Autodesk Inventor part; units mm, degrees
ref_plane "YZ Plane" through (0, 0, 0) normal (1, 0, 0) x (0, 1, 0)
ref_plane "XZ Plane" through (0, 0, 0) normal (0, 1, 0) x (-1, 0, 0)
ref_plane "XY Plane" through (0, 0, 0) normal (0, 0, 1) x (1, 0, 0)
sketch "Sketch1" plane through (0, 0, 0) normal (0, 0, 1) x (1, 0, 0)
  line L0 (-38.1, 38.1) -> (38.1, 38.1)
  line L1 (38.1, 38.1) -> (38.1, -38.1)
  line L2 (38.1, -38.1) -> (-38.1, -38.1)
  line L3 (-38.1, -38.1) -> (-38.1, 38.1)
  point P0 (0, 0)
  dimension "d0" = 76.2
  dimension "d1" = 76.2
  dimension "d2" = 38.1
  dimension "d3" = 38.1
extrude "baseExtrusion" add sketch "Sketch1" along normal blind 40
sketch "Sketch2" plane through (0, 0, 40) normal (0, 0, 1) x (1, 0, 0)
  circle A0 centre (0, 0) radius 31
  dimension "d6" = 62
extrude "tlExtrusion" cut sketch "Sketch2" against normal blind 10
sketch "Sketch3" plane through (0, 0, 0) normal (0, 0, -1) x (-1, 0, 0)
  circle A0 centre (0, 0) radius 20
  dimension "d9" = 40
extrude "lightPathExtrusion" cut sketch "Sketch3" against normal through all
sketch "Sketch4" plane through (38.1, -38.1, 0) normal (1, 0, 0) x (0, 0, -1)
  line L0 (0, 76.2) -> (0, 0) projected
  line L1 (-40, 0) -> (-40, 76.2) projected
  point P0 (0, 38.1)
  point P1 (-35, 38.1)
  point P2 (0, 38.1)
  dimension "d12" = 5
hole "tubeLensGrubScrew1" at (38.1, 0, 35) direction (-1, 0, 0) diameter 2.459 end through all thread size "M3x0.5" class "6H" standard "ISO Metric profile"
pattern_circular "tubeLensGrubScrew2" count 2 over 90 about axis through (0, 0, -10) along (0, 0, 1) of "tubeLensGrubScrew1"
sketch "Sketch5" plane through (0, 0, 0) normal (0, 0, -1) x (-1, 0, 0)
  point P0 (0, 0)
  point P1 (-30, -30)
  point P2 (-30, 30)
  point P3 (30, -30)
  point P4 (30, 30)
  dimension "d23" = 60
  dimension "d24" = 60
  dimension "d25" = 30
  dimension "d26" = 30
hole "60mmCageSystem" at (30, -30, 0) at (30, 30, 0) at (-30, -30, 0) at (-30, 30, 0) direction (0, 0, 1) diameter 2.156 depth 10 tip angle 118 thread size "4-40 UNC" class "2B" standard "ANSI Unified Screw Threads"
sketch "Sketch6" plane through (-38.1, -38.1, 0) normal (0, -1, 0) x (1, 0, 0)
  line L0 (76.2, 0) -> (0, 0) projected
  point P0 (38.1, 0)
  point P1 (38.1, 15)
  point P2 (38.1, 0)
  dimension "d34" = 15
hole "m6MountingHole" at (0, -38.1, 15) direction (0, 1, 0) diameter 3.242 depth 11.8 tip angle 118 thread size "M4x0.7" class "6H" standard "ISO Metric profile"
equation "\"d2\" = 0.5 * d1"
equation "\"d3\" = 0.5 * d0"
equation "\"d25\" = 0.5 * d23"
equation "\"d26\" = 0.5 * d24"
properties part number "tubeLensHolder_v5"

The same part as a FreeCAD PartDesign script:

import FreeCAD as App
import Part
import Sketcher
Q = App.Units.Quantity


def add_polygon(sketch, points):
    """Adds a closed chain of lines whose ends are joined by coincident constraints."""
    first, n = sketch.GeometryCount, len(points)
    for a, b in zip(points, points[1:] + points[:1]):
        sketch.addGeometry(Part.LineSegment(App.Vector(*a, 0), App.Vector(*b, 0)), False)
    for i in range(n):
        sketch.addConstraint(Sketcher.Constraint("Coincident", first + i, 2, first + (i + 1) % n, 1))

doc = App.newDocument("Part")
body = doc.addObject("PartDesign::Body", "Body")

# Sketch on XY plane
sketch1 = body.newObject("Sketcher::SketchObject", "Sketch")
sketch1.AttachmentSupport = (doc.getObject("XY_Plane"), [""])
sketch1.MapMode = "FlatFace"
add_polygon(sketch1, [(38.1, 38.1), (-38.1, 38.1), (-38.1, -38.1), (38.1, -38.1)])  # lines 0-3
sketch1.addConstraint([
    Sketcher.Constraint("Horizontal", 0),
    Sketcher.Constraint("Vertical", 1),
    Sketcher.Constraint("Horizontal", 2),
    Sketcher.Constraint("Vertical", 3),
    Sketcher.Constraint("Symmetric", 0, 2, 2, 2, -1, 1),
    Sketcher.Constraint("Equal", 2, 1),
    Sketcher.Constraint("DistanceX", 0, 2, 0, 1, Q("76.2 mm")),
])
pad1 = body.newObject("PartDesign::Pad", "Pad")
pad1.Profile = sketch1
pad1.Length = 40

# Sketch on XY plane
sketch2 = body.newObject("Sketcher::SketchObject", "Sketch001")
sketch2.AttachmentSupport = (doc.getObject("XY_Plane"), [""])
sketch2.MapMode = "FlatFace"
sketch2.AttachmentOffset = App.Placement(App.Vector(0, 0, 40), App.Rotation())
sketch2.addGeometry(Part.Circle(App.Vector(0, 0, 0), App.Vector(0, 0, 1), 31), False)
sketch2.addConstraint([
    Sketcher.Constraint("Coincident", 0, 3, -1, 1),
    Sketcher.Constraint("Diameter", 0, Q("62 mm")),
])
pocket1 = body.newObject("PartDesign::Pocket", "Pocket")
pocket1.Profile = sketch2
pocket1.Length = 10

# Sketch on XY plane
sketch3 = body.newObject("Sketcher::SketchObject", "Sketch002")
sketch3.AttachmentSupport = (doc.getObject("XY_Plane"), [""])
sketch3.MapMode = "FlatFace"
sketch3.addGeometry(Part.Circle(App.Vector(0, 0, 0), App.Vector(0, 0, 1), 20), False)
sketch3.addConstraint([
    Sketcher.Constraint("Coincident", 0, 3, -1, 1),
    Sketcher.Constraint("Diameter", 0, Q("40 mm")),
])
pocket2 = body.newObject("PartDesign::Pocket", "Pocket001")
pocket2.Profile = sketch3
pocket2.Type = "ThroughAll"
pocket2.Reversed = True

# Sketch on YZ plane
sketch4 = body.newObject("Sketcher::SketchObject", "Sketch003")
sketch4.AttachmentSupport = (doc.getObject("YZ_Plane"), [""])
sketch4.MapMode = "FlatFace"
sketch4.AttachmentOffset = App.Placement(App.Vector(0, 0, 38.1), App.Rotation())
sketch4.addGeometry(Part.Circle(App.Vector(0, 35, 0), App.Vector(0, 0, 1), 1.2295), False)
sketch4.addConstraint([
    Sketcher.Constraint("PointOnObject", 0, 3, -2),
    Sketcher.Constraint("Diameter", 0, Q("2.459 mm")),
    Sketcher.Constraint("DistanceY", -1, 1, 0, 3, Q("35 mm")),
])
doc.recompute()
hole = body.newObject("PartDesign::Hole", "Hole")
hole.Profile = sketch4
hole.ThreadType = "None"
hole.Diameter = 2.459
hole.DepthType = "ThroughAll"
doc.recompute()

polarpattern = body.newObject("PartDesign::PolarPattern", "PolarPattern")
polarpattern.Originals = [hole]
polarpattern.Axis = (doc.getObject("Z_Axis"), [""])
polarpattern.Angle = 90
polarpattern.Occurrences = 2
body.Tip = polarpattern

# Sketch on XY plane
sketch5 = body.newObject("Sketcher::SketchObject", "Sketch004")
sketch5.AttachmentSupport = (doc.getObject("XY_Plane"), [""])
sketch5.MapMode = "FlatFace"
sketch5.addGeometry([
    Part.Circle(App.Vector(30, -30, 0), App.Vector(0, 0, 1), 1.078),
    Part.Circle(App.Vector(30, 30, 0), App.Vector(0, 0, 1), 1.078),
    Part.Circle(App.Vector(-30, -30, 0), App.Vector(0, 0, 1), 1.078),
    Part.Circle(App.Vector(-30, 30, 0), App.Vector(0, 0, 1), 1.078),
], False)
sketch5.addConstraint([
    Sketcher.Constraint("Equal", 0, 1),
    Sketcher.Constraint("Equal", 1, 2),
    Sketcher.Constraint("Equal", 2, 3),
    Sketcher.Constraint("Symmetric", 1, 3, 2, 3, -1, 1),
    Sketcher.Constraint("Symmetric", 0, 3, 3, 3, -1, 1),
    Sketcher.Constraint("Symmetric", 0, 3, 2, 3, -2),
    Sketcher.Constraint("Diameter", 0, Q("2.156 mm")),
    Sketcher.Constraint("DistanceX", -1, 1, 0, 3, Q("30 mm")),
    Sketcher.Constraint("DistanceY", 0, 3, -1, 1, Q("30 mm")),
])
doc.recompute()
hole2 = body.newObject("PartDesign::Hole", "Hole001")
hole2.Profile = sketch5
hole2.ThreadType = "None"
hole2.Diameter = 2.156
hole2.DepthType = "Dimension"
hole2.Depth = 10
hole2.DrillPoint = "Angled"
hole2.DrillPointAngle = 118
hole2.Reversed = True

# Sketch on XZ plane
sketch6 = body.newObject("Sketcher::SketchObject", "Sketch005")
sketch6.AttachmentSupport = (doc.getObject("XZ_Plane"), [""])
sketch6.MapMode = "FlatFace"
sketch6.AttachmentOffset = App.Placement(App.Vector(0, 0, 38.1), App.Rotation())
sketch6.addGeometry(Part.Circle(App.Vector(0, 15, 0), App.Vector(0, 0, 1), 1.621), False)
sketch6.addConstraint([
    Sketcher.Constraint("PointOnObject", 0, 3, -2),
    Sketcher.Constraint("Diameter", 0, Q("3.242 mm")),
    Sketcher.Constraint("DistanceY", -1, 1, 0, 3, Q("15 mm")),
])
doc.recompute()
hole3 = body.newObject("PartDesign::Hole", "Hole002")
hole3.Profile = sketch6
hole3.ThreadType = "None"
hole3.Diameter = 3.242
hole3.DepthType = "Dimension"
hole3.Depth = 11.8
hole3.DrillPoint = "Angled"
hole3.DrillPointAngle = 118

doc.recompute()
